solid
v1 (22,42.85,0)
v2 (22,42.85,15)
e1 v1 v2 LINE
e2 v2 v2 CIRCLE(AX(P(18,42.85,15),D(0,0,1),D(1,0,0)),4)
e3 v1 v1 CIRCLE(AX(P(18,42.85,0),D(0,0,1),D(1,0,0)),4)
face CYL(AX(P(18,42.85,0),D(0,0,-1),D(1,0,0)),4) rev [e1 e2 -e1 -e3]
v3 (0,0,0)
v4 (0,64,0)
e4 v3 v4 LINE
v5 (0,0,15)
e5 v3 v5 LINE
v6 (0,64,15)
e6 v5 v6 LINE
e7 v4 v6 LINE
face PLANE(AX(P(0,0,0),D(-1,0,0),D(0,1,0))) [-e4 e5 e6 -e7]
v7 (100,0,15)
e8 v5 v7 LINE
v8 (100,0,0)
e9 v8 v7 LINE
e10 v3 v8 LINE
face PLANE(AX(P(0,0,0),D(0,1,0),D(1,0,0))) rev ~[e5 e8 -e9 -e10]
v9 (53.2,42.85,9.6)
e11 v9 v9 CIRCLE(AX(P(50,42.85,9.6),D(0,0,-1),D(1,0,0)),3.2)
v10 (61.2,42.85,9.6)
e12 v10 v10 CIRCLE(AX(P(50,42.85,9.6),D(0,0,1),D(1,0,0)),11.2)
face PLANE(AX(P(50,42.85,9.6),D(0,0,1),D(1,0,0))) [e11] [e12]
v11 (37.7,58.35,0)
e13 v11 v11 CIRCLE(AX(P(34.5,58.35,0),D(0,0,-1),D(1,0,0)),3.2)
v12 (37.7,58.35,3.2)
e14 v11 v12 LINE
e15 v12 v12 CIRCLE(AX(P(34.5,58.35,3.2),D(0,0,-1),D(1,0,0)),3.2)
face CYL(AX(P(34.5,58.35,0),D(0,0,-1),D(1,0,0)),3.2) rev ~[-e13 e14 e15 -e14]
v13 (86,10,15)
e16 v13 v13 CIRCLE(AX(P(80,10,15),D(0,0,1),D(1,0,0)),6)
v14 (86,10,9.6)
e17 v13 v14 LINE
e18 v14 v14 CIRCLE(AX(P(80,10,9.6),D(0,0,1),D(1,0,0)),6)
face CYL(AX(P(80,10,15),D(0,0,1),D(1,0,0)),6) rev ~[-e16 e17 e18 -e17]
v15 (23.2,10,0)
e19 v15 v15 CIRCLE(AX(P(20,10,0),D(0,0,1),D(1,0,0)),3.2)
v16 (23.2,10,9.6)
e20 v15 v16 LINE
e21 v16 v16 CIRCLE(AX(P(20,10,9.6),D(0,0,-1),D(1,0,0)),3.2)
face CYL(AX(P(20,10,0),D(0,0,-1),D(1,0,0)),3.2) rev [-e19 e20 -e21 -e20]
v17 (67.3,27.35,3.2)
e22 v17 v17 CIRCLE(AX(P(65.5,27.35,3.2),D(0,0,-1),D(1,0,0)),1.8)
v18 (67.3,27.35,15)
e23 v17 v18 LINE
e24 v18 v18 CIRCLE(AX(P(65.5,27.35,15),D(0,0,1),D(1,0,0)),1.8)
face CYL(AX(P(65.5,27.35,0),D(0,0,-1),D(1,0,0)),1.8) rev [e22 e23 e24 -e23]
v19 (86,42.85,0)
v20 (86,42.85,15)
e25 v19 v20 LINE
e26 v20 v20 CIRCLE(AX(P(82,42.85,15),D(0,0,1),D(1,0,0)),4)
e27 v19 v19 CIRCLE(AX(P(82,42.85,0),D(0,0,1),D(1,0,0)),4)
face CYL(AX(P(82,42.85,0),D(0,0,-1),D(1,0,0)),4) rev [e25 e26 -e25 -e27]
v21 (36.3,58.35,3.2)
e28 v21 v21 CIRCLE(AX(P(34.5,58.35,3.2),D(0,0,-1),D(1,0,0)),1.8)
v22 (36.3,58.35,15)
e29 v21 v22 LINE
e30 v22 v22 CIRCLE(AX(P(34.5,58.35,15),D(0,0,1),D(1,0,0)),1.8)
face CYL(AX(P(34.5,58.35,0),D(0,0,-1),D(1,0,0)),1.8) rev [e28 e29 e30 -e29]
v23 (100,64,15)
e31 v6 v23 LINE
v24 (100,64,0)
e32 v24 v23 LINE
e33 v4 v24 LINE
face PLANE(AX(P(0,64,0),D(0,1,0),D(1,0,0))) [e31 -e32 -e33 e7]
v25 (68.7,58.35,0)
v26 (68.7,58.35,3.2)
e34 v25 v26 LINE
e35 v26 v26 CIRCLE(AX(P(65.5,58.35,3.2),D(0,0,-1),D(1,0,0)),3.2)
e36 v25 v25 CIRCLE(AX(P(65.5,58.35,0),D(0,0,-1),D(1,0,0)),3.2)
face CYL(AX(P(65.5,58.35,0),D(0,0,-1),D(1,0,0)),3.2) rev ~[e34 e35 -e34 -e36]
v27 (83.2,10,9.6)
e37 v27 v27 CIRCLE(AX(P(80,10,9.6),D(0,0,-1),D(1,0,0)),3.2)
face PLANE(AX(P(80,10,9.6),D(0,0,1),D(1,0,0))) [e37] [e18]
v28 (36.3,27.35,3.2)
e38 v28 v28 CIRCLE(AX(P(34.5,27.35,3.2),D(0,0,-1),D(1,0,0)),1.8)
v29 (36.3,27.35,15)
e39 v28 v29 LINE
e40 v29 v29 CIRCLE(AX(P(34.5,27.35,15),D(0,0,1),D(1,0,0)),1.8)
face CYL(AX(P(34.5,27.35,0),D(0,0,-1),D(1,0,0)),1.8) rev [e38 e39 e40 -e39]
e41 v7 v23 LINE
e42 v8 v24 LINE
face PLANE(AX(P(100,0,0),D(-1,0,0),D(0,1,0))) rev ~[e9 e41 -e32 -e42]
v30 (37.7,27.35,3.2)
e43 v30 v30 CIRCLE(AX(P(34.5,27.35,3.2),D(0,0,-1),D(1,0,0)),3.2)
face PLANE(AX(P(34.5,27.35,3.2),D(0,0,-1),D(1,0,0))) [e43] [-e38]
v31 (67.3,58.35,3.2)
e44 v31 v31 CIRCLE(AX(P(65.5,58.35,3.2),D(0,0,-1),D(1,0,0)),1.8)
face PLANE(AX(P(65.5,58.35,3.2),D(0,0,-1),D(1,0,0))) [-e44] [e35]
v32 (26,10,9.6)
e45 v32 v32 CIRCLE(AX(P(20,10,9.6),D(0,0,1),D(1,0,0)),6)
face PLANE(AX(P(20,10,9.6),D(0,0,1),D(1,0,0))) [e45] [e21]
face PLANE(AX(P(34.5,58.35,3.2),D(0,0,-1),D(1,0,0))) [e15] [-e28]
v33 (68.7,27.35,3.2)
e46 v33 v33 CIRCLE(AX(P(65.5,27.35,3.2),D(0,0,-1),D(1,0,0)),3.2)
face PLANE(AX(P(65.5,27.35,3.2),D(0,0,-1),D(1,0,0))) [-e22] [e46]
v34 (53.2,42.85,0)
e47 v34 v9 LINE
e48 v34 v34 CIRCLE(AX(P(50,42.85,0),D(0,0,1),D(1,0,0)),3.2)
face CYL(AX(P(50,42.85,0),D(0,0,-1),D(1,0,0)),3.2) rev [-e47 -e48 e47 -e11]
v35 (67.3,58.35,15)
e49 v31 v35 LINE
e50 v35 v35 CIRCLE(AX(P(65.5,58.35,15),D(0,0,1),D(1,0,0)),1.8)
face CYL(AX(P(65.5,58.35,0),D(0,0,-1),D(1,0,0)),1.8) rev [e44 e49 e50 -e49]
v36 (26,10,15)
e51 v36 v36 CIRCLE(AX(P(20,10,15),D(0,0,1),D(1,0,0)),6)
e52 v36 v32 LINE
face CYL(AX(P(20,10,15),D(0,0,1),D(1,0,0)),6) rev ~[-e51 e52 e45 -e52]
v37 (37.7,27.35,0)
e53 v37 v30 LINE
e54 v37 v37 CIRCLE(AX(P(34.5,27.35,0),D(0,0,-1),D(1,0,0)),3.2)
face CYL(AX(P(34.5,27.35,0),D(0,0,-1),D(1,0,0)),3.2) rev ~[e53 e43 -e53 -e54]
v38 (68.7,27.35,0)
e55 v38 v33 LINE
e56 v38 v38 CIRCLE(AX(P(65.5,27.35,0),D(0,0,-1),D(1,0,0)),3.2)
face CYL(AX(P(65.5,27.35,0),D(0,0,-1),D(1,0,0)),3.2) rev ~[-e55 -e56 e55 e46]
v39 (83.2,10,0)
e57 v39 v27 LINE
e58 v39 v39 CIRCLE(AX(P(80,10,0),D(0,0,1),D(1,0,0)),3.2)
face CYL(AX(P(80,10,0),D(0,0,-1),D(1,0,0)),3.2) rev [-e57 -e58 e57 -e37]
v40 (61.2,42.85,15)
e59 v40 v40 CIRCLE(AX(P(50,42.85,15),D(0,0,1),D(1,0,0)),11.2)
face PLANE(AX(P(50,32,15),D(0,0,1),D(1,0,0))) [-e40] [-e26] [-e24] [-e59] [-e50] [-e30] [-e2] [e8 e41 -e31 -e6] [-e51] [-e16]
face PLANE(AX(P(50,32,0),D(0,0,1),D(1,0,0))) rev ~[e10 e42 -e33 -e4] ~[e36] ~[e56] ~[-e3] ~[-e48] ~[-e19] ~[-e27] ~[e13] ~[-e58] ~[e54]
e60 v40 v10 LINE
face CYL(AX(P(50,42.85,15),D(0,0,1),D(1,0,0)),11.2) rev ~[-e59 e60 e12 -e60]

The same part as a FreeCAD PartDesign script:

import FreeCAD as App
import Part
import Sketcher

V = App.Vector
Q = App.Units.Quantity

doc = App.newDocument("Part")
params = doc.addObject("Spreadsheet::Sheet", "Params")
for row, (alias, value) in enumerate([
    ("sketch1_diameter", "8 mm"),
    ("sketch1_diameter2", "6.4 mm"),
    ("sketch1_diameter3", "3.6 mm"),
    ("sketch1_width", "100 mm"),
    ("sketch1_height", "64 mm"),
    ("pad1_length", "15 mm"),
    ("sketch2_diameter", "12 mm"),
    ("sketch2_diameter2", "22.4 mm"),
    ("pocket1_length", "5.4 mm"),
    ("sketch3_diameter", "6.4 mm"),
    ("pocket2_length", "3.2 mm"),
], start=1):
    params.set(f"A{row}", alias)
    params.set(f"B{row}", "=" + value)
    params.setAlias(f"B{row}", alias)

body = doc.addObject("PartDesign::Body", "Body")

sketch1 = body.newObject("Sketcher::SketchObject", "Sketch")
sketch1.AttachmentSupport = (doc.getObject("XY_Plane"), [""])
sketch1.MapMode = "FlatFace"
sketch1.addGeometry([
    Part.LineSegment(V(0, 64, 0), V(0, 0, 0)),
    Part.LineSegment(V(0, 0, 0), V(100, 0, 0)),
    Part.LineSegment(V(100, 0, 0), V(100, 64, 0)),
    Part.LineSegment(V(100, 64, 0), V(0, 64, 0)),
    Part.Circle(V(20, 10, 0), V(0, 0, 1), 3.2),
    Part.Circle(V(34.5, 27.4, 0), V(0, 0, 1), 1.8),
    Part.Circle(V(80, 10, 0), V(0, 0, 1), 3.2),
    Part.Circle(V(65.5, 27.4, 0), V(0, 0, 1), 1.8),
    Part.Circle(V(18, 42.9, 0), V(0, 0, 1), 4),
    Part.Circle(V(34.5, 58.4, 0), V(0, 0, 1), 1.8),
    Part.Circle(V(50, 42.9, 0), V(0, 0, 1), 3.2),
    Part.Circle(V(82, 42.9, 0), V(0, 0, 1), 4),
    Part.Circle(V(65.5, 58.4, 0), V(0, 0, 1), 1.8),
], False)
sketch1.addConstraint([
    Sketcher.Constraint("Coincident", 0, 2, 1, 1),
    Sketcher.Constraint("Coincident", 1, 2, 2, 1),
    Sketcher.Constraint("Coincident", 2, 2, 3, 1),
    Sketcher.Constraint("Coincident", 3, 2, 0, 1),
    Sketcher.Constraint("Vertical", 0),
    Sketcher.Constraint("Horizontal", 1),
    Sketcher.Constraint("Vertical", 2),
    Sketcher.Constraint("Horizontal", 3),
    Sketcher.Constraint("Coincident", 0, 2, -1, 1),
    Sketcher.Constraint("Equal", 4, 6),
    Sketcher.Constraint("Equal", 5, 7),
    Sketcher.Constraint("Equal", 7, 9),
    Sketcher.Constraint("Equal", 6, 10),
    Sketcher.Constraint("Equal", 8, 11),
    Sketcher.Constraint("Equal", 9, 12),
    Sketcher.Constraint("Horizontal", 4, 3, 6, 3),
    Sketcher.Constraint("Horizontal", 5, 3, 7, 3),
    Sketcher.Constraint("Horizontal", 8, 3, 10, 3),
    Sketcher.Constraint("Horizontal", 10, 3, 11, 3),
    Sketcher.Constraint("Horizontal", 9, 3, 12, 3),
    Sketcher.Constraint("Vertical", 5, 3, 9, 3),
    Sketcher.Constraint("Vertical", 7, 3, 12, 3),
    Sketcher.Constraint("Diameter", 8, Q("8 mm")),
    Sketcher.Constraint("Diameter", 4, Q("6.4 mm")),
    Sketcher.Constraint("Diameter", 5, Q("3.6 mm")),
    Sketcher.Constraint("DistanceX", 1, 1, 1, 2, Q("100 mm")),
    Sketcher.Constraint("DistanceY", 0, 2, 0, 1, Q("64 mm")),
    Sketcher.Constraint("DistanceX", -1, 1, 4, 3, Q("20 mm")),
    Sketcher.Constraint("DistanceY", -1, 1, 4, 3, Q("10 mm")),
    Sketcher.Constraint("DistanceX", -1, 1, 6, 3, Q("80 mm")),
    Sketcher.Constraint("DistanceX", -1, 1, 8, 3, Q("18 mm")),
    Sketcher.Constraint("DistanceX", -1, 1, 10, 3, Q("50 mm")),
    Sketcher.Constraint("DistanceX", -1, 1, 11, 3, Q("82 mm")),
    Sketcher.Constraint("DistanceX", 5, 3, 7, 3, Q("31 mm")),
    Sketcher.Constraint("DistanceY", 5, 3, 9, 3, Q("31 mm")),
    Sketcher.Constraint("DistanceX", -1, 1, 5, 3, Q("34.5 mm")),
    Sketcher.Constraint("DistanceY", 5, 3, 8, 3, Q("15.5 mm")),
    Sketcher.Constraint("DistanceY", -1, 1, 5, 3, Q("27.35 mm")),
])
sketch1.setExpression("Constraints[22]", "Params.sketch1_diameter")
sketch1.setExpression("Constraints[23]", "Params.sketch1_diameter2")
sketch1.setExpression("Constraints[24]", "Params.sketch1_diameter3")
sketch1.setExpression("Constraints[25]", "Params.sketch1_width")
sketch1.setExpression("Constraints[26]", "Params.sketch1_height")
pad1 = body.newObject("PartDesign::Pad", "Pad")
pad1.Profile = sketch1
pad1.setExpression("Length", "Params.pad1_length")

sketch2 = body.newObject("Sketcher::SketchObject", "Sketch001")
sketch2.AttachmentSupport = (doc.getObject("XY_Plane"), [""])
sketch2.MapMode = "FlatFace"
sketch2.AttachmentOffset = App.Placement(V(0, 0, 15), App.Rotation())
sketch2.addGeometry([
    Part.Circle(V(50, 43, 0), V(0, 0, 1), 11),
    Part.Circle(V(20, 10, 0), V(0, 0, 1), 6),
    Part.Circle(V(80, 10, 0), V(0, 0, 1), 6),
], False)
sketch2.addConstraint([
    Sketcher.Constraint("Equal", 1, 2),
    Sketcher.Constraint("Horizontal", 1, 3, 2, 3),
    Sketcher.Constraint("Diameter", 1, Q("12 mm")),
    Sketcher.Constraint("Diameter", 0, Q("22.4 mm")),
    Sketcher.Constraint("DistanceX", -1, 1, 0, 3, Q("50 mm")),
    Sketcher.Constraint("DistanceX", -1, 1, 1, 3, Q("20 mm")),
    Sketcher.Constraint("DistanceY", -1, 1, 1, 3, Q("10 mm")),
    Sketcher.Constraint("DistanceX", -1, 1, 2, 3, Q("80 mm")),
    Sketcher.Constraint("DistanceY", -1, 1, 0, 3, Q("42.85 mm")),
])
sketch2.setExpression("Constraints[2]", "Params.sketch2_diameter")
sketch2.setExpression("Constraints[3]", "Params.sketch2_diameter2")
pocket1 = body.newObject("PartDesign::Pocket", "Pocket")
pocket1.Profile = sketch2
pocket1.setExpression("Length", "Params.pocket1_length")

sketch3 = body.newObject("Sketcher::SketchObject", "Sketch002")
sketch3.AttachmentSupport = (doc.getObject("XY_Plane"), [""])
sketch3.MapMode = "FlatFace"
sketch3.addGeometry([
    Part.Circle(V(34.5, 27.4, 0), V(0, 0, 1), 3.2),
    Part.Circle(V(65.5, 27.4, 0), V(0, 0, 1), 3.2),
    Part.Circle(V(34.5, 58.4, 0), V(0, 0, 1), 3.2),
    Part.Circle(V(65.5, 58.4, 0), V(0, 0, 1), 3.2),
], False)
sketch3.addConstraint([
    Sketcher.Constraint("Equal", 0, 1),
    Sketcher.Constraint("Equal", 1, 2),
    Sketcher.Constraint("Equal", 2, 3),
    Sketcher.Constraint("Horizontal", 0, 3, 1, 3),
    Sketcher.Constraint("Horizontal", 2, 3, 3, 3),
    Sketcher.Constraint("Vertical", 0, 3, 2, 3),
    Sketcher.Constraint("Vertical", 1, 3, 3, 3),
    Sketcher.Constraint("Diameter", 0, Q("6.4 mm")),
    Sketcher.Constraint("DistanceX", 0, 3, 1, 3, Q("31 mm")),
    Sketcher.Constraint("DistanceY", 0, 3, 2, 3, Q("31 mm")),
    Sketcher.Constraint("DistanceX", -1, 1, 0, 3, Q("34.5 mm")),
    Sketcher.Constraint("DistanceY", -1, 1, 0, 3, Q("27.35 mm")),
])
sketch3.setExpression("Constraints[7]", "Params.sketch3_diameter")
pocket2 = body.newObject("PartDesign::Pocket", "Pocket001")
pocket2.Profile = sketch3
pocket2.setExpression("Length", "Params.pocket2_length")
pocket2.Reversed = True

doc.recompute()
